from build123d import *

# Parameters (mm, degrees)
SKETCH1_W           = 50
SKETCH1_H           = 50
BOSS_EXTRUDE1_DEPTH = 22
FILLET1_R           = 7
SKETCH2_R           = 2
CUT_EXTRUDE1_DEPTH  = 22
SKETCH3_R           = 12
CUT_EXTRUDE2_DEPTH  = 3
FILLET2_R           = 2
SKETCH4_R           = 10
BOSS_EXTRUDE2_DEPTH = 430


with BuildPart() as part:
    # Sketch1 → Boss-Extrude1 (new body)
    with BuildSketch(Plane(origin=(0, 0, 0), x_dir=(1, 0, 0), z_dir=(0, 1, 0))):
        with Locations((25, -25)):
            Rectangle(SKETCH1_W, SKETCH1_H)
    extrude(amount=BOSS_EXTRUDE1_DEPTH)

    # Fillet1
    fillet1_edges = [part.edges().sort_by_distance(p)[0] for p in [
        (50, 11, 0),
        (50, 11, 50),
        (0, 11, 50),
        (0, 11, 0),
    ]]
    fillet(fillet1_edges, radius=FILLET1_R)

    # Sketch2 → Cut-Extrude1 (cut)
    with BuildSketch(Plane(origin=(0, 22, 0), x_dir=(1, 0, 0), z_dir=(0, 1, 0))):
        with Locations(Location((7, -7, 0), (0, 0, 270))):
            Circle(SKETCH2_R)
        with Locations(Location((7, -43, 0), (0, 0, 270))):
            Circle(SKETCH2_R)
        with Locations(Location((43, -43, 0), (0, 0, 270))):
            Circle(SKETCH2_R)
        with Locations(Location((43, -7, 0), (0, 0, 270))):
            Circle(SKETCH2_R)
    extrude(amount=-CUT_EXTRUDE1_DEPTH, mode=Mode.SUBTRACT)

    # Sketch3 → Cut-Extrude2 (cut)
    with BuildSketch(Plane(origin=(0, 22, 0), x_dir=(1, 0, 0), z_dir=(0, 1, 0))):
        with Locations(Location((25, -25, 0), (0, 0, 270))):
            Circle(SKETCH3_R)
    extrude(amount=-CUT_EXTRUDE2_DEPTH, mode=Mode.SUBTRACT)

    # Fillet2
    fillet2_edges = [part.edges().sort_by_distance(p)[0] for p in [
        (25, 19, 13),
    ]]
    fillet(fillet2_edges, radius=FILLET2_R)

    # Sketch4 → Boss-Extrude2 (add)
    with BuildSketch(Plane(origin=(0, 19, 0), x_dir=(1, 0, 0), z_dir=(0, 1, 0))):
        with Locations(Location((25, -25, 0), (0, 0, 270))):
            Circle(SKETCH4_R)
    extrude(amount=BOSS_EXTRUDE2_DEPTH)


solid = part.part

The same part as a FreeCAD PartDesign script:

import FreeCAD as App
import Part
import Sketcher


def edges_at(feature, points):
    """Names of the edges that pass closest to the given points."""
    edges = feature.Shape.Edges
    near = lambda p: min(range(len(edges)), key=lambda i: edges[i].distToShape(Part.Vertex(*p))[0])
    return sorted({f"Edge{near(p) + 1}" for p in points})

doc = App.newDocument("Part")
body = doc.addObject("PartDesign::Body", "Body")

# Sketch on XZ plane
sketch1 = doc.addObject("Sketcher::SketchObject", "Sketch")
body.addObject(sketch1)
sketch1.AttachmentSupport = (doc.XZ_Plane, [""])
sketch1.MapMode = "FlatFace"
sketch1.addGeometry([
    Part.LineSegment(App.Vector(0, 0, 0), App.Vector(0, 50, 0)),
    Part.LineSegment(App.Vector(0, 50, 0), App.Vector(50, 50, 0)),
    Part.LineSegment(App.Vector(50, 50, 0), App.Vector(50, 0, 0)),
    Part.LineSegment(App.Vector(50, 0, 0), App.Vector(0, 0, 0)),
], False)
sketch1.addConstraint([
    Sketcher.Constraint("Coincident", 0, 2, 1, 1),
    Sketcher.Constraint("Coincident", 1, 2, 2, 1),
    Sketcher.Constraint("Coincident", 2, 2, 3, 1),
    Sketcher.Constraint("Coincident", 3, 2, 0, 1),
    Sketcher.Constraint("Vertical", 0),
    Sketcher.Constraint("Horizontal", 1),
    Sketcher.Constraint("Vertical", 2),
    Sketcher.Constraint("Horizontal", 3),
    Sketcher.Constraint("Coincident", 3, 2, -1, 1),
    Sketcher.Constraint("Equal", 3, 0),
    Sketcher.Constraint("DistanceX", 1, 1, 1, 2, 50.0),
])
pad1 = doc.addObject("PartDesign::Pad", "Pad")
body.addObject(pad1)
pad1.Profile = sketch1
pad1.Length = 22
pad1.Reversed = True
doc.recompute()

fillet = doc.addObject("PartDesign::Fillet", "Fillet")
body.addObject(fillet)
fillet.Base = (pad1, edges_at(pad1, [
    (50, 11, 0),
    (50, 11, 50),
    (0, 11, 50),
    (0, 11, 0),
]))
fillet.Radius = 7

# Sketch on XZ plane
sketch2 = doc.addObject("Sketcher::SketchObject", "Sketch001")
body.addObject(sketch2)
sketch2.AttachmentSupport = (doc.XZ_Plane, [""])
sketch2.MapMode = "FlatFace"
sketch2.AttachmentOffset = App.Placement(App.Vector(0, 0, -22), App.Rotation())
sketch2.addGeometry([
    Part.Circle(App.Vector(7, 7, 0), App.Vector(0, 0, 1), 2),
    Part.Circle(App.Vector(7, 43, 0), App.Vector(0, 0, 1), 2),
    Part.Circle(App.Vector(43, 43, 0), App.Vector(0, 0, 1), 2),
    Part.Circle(App.Vector(43, 7, 0), App.Vector(0, 0, 1), 2),
], False)
sketch2.addConstraint([
    Sketcher.Constraint("Equal", 0, 1),
    Sketcher.Constraint("Equal", 1, 2),
    Sketcher.Constraint("Equal", 2, 3),
    Sketcher.Constraint("Horizontal", 1, 3, 2, 3),
    Sketcher.Constraint("Horizontal", 0, 3, 3, 3),
    Sketcher.Constraint("Vertical", 0, 3, 1, 3),
    Sketcher.Constraint("Vertical", 2, 3, 3, 3),
    Sketcher.Constraint("Diameter", 0, 4.0),
    Sketcher.Constraint("DistanceX", -1, 1, 0, 3, 7.0),
    Sketcher.Constraint("DistanceY", -1, 1, 0, 3, 7.0),
    Sketcher.Constraint("DistanceY", -1, 1, 1, 3, 43.0),
    Sketcher.Constraint("DistanceX", -1, 1, 2, 3, 43.0),
])
pocket1 = doc.addObject("PartDesign::Pocket", "Pocket")
body.addObject(pocket1)
pocket1.Profile = sketch2
pocket1.Length = 22
pocket1.Reversed = True

# Sketch on XZ plane
sketch3 = doc.addObject("Sketcher::SketchObject", "Sketch002")
body.addObject(sketch3)
sketch3.AttachmentSupport = (doc.XZ_Plane, [""])
sketch3.MapMode = "FlatFace"
sketch3.AttachmentOffset = App.Placement(App.Vector(0, 0, -22), App.Rotation())
sketch3.addGeometry(Part.Circle(App.Vector(25, 25, 0), App.Vector(0, 0, 1), 12), False)
sketch3.addConstraint([
    Sketcher.Constraint("Diameter", 0, 24.0),
    Sketcher.Constraint("DistanceX", -1, 1, 0, 3, 25.0),
    Sketcher.Constraint("DistanceY", -1, 1, 0, 3, 25.0),
])
pocket2 = doc.addObject("PartDesign::Pocket", "Pocket001")
body.addObject(pocket2)
pocket2.Profile = sketch3
pocket2.Length = 3
pocket2.Reversed = True
doc.recompute()

fillet2 = doc.addObject("PartDesign::Fillet", "Fillet001")
body.addObject(fillet2)
fillet2.Base = (pocket2, edges_at(pocket2, [(25, 19, 13)]))
fillet2.Radius = 2

# Sketch on XZ plane
sketch4 = doc.addObject("Sketcher::SketchObject", "Sketch003")
body.addObject(sketch4)
sketch4.AttachmentSupport = (doc.XZ_Plane, [""])
sketch4.MapMode = "FlatFace"
sketch4.AttachmentOffset = App.Placement(App.Vector(0, 0, -19), App.Rotation())
sketch4.addGeometry(Part.Circle(App.Vector(25, 25, 0), App.Vector(0, 0, 1), 10), False)
sketch4.addConstraint([
    Sketcher.Constraint("Diameter", 0, 20.0),
    Sketcher.Constraint("DistanceX", -1, 1, 0, 3, 25.0),
    Sketcher.Constraint("DistanceY", -1, 1, 0, 3, 25.0),
])
pad2 = doc.addObject("PartDesign::Pad", "Pad001")
body.addObject(pad2)
pad2.Profile = sketch4
pad2.Length = 430
pad2.Reversed = True

doc.recompute()
